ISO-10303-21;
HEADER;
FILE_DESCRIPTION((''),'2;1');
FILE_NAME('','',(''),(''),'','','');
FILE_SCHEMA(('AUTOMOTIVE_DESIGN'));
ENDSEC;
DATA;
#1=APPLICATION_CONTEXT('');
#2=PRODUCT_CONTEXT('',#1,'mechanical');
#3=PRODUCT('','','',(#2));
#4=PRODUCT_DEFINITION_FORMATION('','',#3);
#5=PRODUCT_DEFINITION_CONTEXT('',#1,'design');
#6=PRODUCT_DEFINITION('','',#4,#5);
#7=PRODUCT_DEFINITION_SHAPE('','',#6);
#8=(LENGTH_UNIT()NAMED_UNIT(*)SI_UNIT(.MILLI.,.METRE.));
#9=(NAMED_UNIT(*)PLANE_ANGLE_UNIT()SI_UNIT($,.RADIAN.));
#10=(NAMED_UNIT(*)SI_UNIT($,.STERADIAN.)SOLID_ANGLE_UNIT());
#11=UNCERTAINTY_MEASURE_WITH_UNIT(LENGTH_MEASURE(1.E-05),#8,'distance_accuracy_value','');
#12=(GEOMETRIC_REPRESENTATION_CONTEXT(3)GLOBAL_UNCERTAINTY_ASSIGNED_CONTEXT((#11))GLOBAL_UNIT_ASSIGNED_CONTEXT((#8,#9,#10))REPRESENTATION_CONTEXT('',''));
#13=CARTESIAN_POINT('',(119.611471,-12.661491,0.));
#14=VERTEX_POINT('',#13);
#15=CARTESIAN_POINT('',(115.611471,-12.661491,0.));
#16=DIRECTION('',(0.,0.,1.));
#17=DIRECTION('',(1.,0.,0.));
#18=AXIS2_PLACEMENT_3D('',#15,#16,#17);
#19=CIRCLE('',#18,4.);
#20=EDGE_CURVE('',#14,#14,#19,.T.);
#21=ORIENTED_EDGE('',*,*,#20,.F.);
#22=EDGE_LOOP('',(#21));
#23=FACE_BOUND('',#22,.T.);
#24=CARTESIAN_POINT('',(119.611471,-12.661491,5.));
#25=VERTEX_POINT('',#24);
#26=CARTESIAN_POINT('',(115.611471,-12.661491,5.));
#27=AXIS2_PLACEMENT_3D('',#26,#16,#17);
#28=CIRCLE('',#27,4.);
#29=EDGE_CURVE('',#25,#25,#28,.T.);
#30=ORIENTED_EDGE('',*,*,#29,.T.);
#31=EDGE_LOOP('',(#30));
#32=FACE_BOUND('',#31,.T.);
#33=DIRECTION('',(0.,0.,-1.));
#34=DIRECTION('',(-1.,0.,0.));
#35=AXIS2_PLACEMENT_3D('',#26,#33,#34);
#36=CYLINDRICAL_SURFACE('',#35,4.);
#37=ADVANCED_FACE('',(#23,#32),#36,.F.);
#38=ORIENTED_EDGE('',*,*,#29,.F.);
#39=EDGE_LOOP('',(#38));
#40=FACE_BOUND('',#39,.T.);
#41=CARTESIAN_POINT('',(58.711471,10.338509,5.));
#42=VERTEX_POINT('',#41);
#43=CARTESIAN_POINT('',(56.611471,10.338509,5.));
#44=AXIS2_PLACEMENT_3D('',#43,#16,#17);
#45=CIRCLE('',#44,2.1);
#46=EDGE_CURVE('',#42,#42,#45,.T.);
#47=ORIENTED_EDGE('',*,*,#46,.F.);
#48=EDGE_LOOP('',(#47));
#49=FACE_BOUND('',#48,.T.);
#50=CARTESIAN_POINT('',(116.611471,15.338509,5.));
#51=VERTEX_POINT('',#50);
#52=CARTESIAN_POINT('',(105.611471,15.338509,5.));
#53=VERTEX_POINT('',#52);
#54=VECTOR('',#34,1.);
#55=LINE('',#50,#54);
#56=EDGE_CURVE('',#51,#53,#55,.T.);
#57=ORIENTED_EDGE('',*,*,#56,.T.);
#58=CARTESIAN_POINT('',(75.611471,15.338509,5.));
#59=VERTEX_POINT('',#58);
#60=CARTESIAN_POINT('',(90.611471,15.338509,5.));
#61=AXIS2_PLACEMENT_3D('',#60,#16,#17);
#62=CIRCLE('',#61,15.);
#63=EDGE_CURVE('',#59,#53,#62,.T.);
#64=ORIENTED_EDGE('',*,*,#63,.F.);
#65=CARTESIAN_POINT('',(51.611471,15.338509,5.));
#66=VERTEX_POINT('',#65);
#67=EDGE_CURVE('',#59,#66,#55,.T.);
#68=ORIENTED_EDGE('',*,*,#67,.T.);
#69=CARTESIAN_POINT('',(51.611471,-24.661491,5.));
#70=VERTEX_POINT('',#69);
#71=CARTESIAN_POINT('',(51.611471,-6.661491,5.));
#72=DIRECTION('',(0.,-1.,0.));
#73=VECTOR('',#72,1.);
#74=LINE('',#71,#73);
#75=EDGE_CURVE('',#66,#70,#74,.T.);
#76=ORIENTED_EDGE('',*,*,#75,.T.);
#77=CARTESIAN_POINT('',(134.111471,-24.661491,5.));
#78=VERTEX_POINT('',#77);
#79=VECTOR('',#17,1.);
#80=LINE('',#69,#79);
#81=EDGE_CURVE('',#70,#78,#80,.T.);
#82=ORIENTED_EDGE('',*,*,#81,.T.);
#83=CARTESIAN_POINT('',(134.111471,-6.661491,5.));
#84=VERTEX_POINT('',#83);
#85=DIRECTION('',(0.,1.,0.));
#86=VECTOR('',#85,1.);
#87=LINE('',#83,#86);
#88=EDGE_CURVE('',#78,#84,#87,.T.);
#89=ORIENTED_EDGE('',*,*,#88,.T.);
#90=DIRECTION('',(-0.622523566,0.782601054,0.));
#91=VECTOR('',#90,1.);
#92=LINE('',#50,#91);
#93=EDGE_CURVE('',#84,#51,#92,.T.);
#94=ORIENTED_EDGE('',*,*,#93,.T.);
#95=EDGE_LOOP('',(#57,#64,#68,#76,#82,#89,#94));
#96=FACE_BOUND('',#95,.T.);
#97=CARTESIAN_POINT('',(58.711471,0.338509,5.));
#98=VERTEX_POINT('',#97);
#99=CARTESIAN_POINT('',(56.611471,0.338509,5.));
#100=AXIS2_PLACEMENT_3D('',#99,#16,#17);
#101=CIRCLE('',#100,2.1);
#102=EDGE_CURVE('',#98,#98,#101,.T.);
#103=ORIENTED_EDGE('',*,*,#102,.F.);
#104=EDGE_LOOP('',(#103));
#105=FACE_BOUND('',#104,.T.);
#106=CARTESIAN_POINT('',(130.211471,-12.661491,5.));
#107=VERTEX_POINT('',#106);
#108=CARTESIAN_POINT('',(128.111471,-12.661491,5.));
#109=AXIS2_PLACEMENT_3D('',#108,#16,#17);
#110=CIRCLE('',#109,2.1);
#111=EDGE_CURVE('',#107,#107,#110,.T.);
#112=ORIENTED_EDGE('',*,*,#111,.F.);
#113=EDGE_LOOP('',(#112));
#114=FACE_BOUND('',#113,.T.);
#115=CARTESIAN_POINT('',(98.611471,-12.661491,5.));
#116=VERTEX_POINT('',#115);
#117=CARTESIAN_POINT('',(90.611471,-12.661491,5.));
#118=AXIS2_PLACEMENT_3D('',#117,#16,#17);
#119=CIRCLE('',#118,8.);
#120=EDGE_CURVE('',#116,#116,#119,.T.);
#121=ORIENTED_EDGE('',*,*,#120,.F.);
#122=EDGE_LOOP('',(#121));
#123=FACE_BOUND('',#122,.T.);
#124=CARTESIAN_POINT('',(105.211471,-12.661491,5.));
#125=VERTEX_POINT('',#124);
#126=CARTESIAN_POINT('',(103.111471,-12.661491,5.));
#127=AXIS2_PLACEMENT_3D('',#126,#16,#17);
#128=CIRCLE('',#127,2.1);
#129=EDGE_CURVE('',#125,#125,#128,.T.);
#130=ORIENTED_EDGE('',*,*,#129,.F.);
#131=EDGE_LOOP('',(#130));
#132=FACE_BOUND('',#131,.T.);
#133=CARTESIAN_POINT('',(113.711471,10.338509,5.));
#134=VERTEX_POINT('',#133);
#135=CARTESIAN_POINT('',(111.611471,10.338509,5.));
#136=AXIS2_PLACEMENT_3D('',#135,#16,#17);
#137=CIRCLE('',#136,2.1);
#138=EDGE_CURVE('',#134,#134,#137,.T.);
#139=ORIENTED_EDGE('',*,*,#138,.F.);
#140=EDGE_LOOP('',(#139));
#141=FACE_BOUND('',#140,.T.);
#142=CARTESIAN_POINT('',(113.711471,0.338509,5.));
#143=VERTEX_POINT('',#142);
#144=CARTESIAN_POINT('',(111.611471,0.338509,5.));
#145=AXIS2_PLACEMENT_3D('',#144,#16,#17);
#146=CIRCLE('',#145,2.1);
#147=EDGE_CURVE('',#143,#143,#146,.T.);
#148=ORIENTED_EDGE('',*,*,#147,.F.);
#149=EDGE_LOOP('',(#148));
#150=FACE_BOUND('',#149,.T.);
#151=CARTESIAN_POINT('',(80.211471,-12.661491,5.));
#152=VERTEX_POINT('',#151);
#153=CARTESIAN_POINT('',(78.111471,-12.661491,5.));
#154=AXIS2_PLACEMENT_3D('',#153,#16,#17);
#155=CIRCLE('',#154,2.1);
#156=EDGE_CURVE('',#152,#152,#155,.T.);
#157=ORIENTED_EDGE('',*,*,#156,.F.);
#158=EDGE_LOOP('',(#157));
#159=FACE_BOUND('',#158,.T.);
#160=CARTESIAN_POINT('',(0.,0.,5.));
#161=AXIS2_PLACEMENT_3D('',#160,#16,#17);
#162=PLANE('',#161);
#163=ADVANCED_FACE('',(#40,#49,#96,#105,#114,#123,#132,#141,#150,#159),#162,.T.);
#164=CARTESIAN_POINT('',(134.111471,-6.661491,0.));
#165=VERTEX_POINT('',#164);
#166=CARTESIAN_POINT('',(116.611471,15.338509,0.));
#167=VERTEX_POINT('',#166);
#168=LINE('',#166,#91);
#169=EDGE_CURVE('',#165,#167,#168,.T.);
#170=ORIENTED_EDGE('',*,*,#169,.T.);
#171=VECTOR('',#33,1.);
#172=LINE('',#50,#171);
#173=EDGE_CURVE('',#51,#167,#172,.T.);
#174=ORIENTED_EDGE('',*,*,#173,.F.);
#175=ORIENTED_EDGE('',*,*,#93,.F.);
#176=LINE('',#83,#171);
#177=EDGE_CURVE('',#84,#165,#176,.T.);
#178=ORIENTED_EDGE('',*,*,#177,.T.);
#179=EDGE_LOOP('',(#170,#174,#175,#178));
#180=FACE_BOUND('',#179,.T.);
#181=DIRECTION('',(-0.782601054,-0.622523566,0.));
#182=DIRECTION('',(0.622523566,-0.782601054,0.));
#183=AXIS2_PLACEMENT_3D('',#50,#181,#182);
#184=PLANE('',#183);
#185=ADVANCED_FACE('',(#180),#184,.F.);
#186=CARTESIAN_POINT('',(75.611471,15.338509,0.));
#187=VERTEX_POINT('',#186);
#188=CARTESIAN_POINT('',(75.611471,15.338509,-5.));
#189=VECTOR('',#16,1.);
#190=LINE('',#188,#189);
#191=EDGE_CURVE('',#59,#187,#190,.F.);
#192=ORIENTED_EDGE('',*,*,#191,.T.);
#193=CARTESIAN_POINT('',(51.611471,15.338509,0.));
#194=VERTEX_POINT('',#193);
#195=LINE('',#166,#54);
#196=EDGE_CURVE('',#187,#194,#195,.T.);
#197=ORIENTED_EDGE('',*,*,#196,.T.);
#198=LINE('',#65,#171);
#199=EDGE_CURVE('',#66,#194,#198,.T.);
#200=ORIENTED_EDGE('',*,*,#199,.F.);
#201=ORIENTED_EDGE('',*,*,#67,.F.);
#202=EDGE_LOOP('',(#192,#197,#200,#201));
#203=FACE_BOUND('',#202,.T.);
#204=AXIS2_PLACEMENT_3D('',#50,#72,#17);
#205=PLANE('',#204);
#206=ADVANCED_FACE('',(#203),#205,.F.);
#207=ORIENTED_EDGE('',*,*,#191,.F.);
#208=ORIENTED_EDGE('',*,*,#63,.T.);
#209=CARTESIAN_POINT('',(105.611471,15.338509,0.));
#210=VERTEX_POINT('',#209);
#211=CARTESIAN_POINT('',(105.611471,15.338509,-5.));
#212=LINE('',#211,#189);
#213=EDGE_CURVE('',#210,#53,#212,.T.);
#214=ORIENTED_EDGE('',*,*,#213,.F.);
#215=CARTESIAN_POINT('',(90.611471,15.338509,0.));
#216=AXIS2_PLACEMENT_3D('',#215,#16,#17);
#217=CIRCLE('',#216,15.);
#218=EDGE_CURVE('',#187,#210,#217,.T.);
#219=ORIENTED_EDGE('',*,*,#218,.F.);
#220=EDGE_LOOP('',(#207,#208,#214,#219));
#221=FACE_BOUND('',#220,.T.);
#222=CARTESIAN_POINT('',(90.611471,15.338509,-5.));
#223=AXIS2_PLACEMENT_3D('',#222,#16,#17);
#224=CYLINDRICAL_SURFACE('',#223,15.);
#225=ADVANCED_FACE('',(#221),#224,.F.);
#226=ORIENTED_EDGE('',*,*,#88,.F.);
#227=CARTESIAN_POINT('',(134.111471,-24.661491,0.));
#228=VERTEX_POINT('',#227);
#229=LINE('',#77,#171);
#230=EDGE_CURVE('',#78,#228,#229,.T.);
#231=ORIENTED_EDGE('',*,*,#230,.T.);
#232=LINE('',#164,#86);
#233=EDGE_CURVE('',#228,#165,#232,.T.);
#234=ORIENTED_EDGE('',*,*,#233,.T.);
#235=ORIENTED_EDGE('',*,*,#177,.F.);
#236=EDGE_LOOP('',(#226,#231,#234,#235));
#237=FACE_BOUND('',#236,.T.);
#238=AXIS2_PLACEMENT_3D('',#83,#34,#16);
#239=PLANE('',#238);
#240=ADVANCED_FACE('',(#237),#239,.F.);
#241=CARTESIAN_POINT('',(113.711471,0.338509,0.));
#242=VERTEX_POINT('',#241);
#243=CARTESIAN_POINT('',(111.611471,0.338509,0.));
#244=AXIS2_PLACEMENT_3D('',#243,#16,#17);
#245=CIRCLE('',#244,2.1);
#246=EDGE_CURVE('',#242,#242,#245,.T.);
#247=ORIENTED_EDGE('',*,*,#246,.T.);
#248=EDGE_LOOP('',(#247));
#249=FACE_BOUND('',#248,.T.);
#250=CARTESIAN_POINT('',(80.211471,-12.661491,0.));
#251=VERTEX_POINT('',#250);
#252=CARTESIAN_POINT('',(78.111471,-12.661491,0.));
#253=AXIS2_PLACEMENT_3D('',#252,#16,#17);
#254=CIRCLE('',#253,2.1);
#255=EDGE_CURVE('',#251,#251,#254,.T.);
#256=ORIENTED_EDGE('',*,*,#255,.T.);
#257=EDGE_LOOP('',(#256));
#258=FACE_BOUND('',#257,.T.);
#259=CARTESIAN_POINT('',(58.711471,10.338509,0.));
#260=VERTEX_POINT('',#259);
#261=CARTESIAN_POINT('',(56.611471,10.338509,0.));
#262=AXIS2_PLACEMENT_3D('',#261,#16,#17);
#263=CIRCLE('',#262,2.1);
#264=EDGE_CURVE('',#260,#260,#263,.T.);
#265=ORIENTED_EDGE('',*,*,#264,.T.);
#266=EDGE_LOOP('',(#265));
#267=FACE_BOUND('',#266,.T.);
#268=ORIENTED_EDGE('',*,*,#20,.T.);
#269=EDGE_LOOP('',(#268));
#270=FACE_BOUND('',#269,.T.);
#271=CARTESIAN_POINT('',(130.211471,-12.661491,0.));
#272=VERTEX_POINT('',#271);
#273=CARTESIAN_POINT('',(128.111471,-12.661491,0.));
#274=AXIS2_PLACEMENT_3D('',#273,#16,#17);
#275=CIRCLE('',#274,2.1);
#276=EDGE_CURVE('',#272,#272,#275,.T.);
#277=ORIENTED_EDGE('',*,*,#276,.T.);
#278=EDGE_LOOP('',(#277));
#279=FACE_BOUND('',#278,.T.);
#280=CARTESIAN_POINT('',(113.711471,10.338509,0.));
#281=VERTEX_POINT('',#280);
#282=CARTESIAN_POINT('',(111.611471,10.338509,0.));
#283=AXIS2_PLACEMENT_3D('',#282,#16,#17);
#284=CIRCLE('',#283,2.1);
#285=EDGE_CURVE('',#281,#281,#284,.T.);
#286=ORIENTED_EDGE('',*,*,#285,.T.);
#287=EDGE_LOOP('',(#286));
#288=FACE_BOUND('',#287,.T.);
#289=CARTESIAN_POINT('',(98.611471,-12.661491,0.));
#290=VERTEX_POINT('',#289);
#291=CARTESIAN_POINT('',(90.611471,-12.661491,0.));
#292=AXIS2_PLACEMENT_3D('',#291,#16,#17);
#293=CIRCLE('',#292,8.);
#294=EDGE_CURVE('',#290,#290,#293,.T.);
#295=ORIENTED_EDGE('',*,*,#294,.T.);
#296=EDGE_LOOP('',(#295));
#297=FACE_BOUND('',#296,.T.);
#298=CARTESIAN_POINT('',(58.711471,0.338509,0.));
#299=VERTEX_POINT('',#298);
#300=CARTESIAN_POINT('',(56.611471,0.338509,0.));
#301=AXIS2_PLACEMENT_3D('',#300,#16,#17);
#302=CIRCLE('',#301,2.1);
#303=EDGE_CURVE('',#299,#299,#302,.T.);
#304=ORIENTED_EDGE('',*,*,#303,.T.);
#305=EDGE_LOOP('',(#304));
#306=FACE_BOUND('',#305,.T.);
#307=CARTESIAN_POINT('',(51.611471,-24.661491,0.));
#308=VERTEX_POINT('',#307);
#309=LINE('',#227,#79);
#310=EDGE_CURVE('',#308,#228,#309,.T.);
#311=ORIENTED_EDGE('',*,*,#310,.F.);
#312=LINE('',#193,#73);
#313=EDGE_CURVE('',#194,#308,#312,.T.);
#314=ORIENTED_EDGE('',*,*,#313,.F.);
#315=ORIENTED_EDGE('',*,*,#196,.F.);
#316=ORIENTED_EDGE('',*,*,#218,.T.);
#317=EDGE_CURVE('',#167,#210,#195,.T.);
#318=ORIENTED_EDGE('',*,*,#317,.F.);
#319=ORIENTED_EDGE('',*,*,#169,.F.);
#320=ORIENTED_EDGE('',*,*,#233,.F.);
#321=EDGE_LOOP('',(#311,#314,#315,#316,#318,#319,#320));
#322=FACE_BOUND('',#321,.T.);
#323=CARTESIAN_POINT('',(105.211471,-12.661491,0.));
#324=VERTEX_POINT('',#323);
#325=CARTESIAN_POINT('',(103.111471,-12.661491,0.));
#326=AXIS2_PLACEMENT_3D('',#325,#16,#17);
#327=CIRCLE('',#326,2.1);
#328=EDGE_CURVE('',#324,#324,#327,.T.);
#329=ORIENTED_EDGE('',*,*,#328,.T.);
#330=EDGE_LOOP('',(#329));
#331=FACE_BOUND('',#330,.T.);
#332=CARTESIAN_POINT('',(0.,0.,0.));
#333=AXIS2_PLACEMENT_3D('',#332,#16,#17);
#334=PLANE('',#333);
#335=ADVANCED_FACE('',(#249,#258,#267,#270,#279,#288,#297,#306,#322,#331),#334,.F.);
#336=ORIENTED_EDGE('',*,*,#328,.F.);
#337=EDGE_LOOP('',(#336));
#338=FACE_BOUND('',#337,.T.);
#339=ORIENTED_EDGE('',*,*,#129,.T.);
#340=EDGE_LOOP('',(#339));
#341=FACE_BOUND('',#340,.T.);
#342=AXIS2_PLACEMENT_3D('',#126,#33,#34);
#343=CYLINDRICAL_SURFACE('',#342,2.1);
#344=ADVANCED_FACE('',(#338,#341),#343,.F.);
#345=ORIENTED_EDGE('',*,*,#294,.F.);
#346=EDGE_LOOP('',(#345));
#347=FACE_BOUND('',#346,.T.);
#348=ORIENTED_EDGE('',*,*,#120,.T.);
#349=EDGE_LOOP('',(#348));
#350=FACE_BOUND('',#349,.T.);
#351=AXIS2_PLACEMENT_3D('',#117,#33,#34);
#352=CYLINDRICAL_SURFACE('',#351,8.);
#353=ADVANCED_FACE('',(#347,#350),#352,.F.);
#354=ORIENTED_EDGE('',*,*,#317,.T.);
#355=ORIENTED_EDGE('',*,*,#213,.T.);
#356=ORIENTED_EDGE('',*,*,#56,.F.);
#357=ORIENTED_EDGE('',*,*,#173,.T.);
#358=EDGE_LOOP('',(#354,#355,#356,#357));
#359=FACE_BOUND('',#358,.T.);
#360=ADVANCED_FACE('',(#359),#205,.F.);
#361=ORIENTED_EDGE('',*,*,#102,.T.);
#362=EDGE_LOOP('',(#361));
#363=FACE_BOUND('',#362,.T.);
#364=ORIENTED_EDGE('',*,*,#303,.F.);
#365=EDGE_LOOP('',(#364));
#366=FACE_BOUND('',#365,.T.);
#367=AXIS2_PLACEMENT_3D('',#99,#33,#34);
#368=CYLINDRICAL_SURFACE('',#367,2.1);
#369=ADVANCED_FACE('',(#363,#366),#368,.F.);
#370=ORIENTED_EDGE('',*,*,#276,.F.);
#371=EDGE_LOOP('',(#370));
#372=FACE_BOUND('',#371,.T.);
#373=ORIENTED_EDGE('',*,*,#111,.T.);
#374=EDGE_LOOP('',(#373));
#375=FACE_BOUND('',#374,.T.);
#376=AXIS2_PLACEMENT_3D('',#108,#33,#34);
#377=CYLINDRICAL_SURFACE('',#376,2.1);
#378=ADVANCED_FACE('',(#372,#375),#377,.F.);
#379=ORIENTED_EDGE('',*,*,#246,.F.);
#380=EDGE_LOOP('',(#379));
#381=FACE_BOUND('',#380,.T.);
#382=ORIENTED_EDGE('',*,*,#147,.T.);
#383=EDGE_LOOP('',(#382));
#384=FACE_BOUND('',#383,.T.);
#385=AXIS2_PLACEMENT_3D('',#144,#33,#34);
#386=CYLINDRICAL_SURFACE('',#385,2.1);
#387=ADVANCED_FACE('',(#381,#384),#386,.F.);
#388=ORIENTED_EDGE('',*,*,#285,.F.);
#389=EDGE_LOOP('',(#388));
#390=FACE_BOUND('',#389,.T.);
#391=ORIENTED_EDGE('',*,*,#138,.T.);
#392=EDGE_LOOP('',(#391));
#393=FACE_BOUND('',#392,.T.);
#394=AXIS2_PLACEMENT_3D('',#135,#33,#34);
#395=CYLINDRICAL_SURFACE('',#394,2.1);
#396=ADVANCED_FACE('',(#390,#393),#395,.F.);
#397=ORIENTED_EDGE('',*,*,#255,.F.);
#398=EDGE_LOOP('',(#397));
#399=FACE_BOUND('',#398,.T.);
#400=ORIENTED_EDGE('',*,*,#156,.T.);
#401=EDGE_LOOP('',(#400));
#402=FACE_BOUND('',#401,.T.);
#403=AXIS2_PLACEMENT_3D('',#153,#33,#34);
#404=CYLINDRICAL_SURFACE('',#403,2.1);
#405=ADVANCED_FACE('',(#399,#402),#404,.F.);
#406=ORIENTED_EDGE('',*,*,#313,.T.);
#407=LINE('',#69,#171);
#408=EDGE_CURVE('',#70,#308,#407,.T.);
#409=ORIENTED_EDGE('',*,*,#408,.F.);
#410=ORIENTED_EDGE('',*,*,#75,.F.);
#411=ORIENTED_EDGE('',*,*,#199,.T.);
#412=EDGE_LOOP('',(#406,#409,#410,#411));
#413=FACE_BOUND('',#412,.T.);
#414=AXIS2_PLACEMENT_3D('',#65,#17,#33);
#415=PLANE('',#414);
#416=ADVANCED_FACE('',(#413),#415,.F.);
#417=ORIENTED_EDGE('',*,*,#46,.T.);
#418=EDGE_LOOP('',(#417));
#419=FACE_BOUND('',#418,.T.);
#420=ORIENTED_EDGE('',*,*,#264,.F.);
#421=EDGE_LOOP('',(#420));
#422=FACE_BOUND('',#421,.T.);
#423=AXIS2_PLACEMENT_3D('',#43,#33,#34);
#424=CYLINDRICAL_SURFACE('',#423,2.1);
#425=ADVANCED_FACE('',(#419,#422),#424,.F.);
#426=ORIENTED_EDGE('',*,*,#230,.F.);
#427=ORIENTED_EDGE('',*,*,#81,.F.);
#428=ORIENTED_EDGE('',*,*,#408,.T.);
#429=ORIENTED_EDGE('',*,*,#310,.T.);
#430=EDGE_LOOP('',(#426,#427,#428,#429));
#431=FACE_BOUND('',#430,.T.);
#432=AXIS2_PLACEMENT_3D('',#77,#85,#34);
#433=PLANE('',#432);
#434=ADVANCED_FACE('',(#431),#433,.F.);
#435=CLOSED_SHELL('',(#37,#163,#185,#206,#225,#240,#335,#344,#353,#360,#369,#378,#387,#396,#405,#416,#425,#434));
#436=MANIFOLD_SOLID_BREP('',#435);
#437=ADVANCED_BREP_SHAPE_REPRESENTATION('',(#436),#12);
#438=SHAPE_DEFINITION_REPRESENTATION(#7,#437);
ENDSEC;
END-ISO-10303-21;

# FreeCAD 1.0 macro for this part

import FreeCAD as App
import Part
import Sketcher
from FreeCAD import Vector
Q = App.Units.Quantity

doc = App.newDocument("Part")
params = doc.addObject("Spreadsheet::Sheet", "Params")
for row, (alias, value) in enumerate([
    ("sketch1_diameter", "16 mm"),
    ("sketch1_diameter2", "8 mm"),
    ("sketch1_diameter3", "4.2 mm"),
    ("sketch1_width", "65 mm"),
    ("sketch1_height", "40 mm"),
    ("pad1_length", "5 mm"),
    ("sketch2_diameter", "30 mm"),
    ("pocket1_length", "10 mm"),
], start=1):
    params.set(f"A{row}", alias)
    params.set(f"B{row}", "=" + value)
    params.setAlias(f"B{row}", alias)

body = doc.addObject("PartDesign::Body", "Body")

sketch1 = body.newObject("Sketcher::SketchObject", "Sketch")
sketch1.AttachmentSupport = (doc.getObject("XY_Plane"), [""])
sketch1.MapMode = "FlatFace"
sketch1.addGeometry([
    Part.LineSegment(Vector(116.6, 15.3, 0), Vector(51.6, 15.3, 0)),
    Part.LineSegment(Vector(51.6, 15.3, 0), Vector(51.6, -24.7, 0)),
    Part.LineSegment(Vector(51.6, -24.7, 0), Vector(134.1, -24.7, 0)),
    Part.LineSegment(Vector(134.1, -24.7, 0), Vector(134.1, -6.7, 0)),
    Part.LineSegment(Vector(134.1, -6.7, 0), Vector(116.6, 15.3, 0)),
    Part.Circle(Vector(78.1, -12.7, 0), Vector(0, 0, 1), 2.1),
    Part.Circle(Vector(90.6, -12.7, 0), Vector(0, 0, 1), 8),
    Part.Circle(Vector(103.1, -12.7, 0), Vector(0, 0, 1), 2.1),
    Part.Circle(Vector(115.6, -12.7, 0), Vector(0, 0, 1), 4),
    Part.Circle(Vector(128.1, -12.7, 0), Vector(0, 0, 1), 2.1),
    Part.Circle(Vector(56.6, 0.3, 0), Vector(0, 0, 1), 2.1),
    Part.Circle(Vector(56.6, 10.3, 0), Vector(0, 0, 1), 2.1),
    Part.Circle(Vector(111.6, 0.3, 0), Vector(0, 0, 1), 2.1),
    Part.Circle(Vector(111.6, 10.3, 0), Vector(0, 0, 1), 2.1),
], False)
sketch1.addConstraint([
    Sketcher.Constraint("Coincident", 0, 2, 1, 1),
    Sketcher.Constraint("Coincident", 1, 2, 2, 1),
    Sketcher.Constraint("Coincident", 2, 2, 3, 1),
    Sketcher.Constraint("Coincident", 3, 2, 4, 1),
    Sketcher.Constraint("Coincident", 4, 2, 0, 1),
    Sketcher.Constraint("Horizontal", 0),
    Sketcher.Constraint("Vertical", 1),
    Sketcher.Constraint("Horizontal", 2),
    Sketcher.Constraint("Vertical", 3),
    Sketcher.Constraint("Equal", 5, 7),
    Sketcher.Constraint("Equal", 7, 9),
    Sketcher.Constraint("Equal", 9, 10),
    Sketcher.Constraint("Equal", 10, 11),
    Sketcher.Constraint("Equal", 11, 12),
    Sketcher.Constraint("Equal", 12, 13),
    Sketcher.Constraint("Horizontal", 5, 3, 6, 3),
    Sketcher.Constraint("Horizontal", 6, 3, 7, 3),
    Sketcher.Constraint("Horizontal", 7, 3, 8, 3),
    Sketcher.Constraint("Horizontal", 8, 3, 9, 3),
    Sketcher.Constraint("Horizontal", 10, 3, 12, 3),
    Sketcher.Constraint("Horizontal", 11, 3, 13, 3),
    Sketcher.Constraint("Vertical", 10, 3, 11, 3),
    Sketcher.Constraint("Vertical", 12, 3, 13, 3),
    Sketcher.Constraint("Diameter", 6, Q("16 mm")),
    Sketcher.Constraint("Diameter", 8, Q("8 mm")),
    Sketcher.Constraint("Diameter", 5, Q("4.2 mm")),
    Sketcher.Constraint("DistanceX", 0, 2, 0, 1, Q("65 mm")),
    Sketcher.Constraint("DistanceY", 1, 2, 1, 1, Q("40 mm")),
    Sketcher.Constraint("DistanceY", 3, 1, 3, 2, Q("18 mm")),
    Sketcher.Constraint("DistanceX", 2, 1, 2, 2, Q("82.5 mm")),
    Sketcher.Constraint("DistanceX", 5, 3, 7, 3, Q("25 mm")),
    Sketcher.Constraint("DistanceX", 6, 3, 8, 3, Q("25 mm")),
    Sketcher.Constraint("DistanceX", 7, 3, 9, 3, Q("25 mm")),
    Sketcher.Constraint("DistanceY", 5, 3, 10, 3, Q("13 mm")),
    Sketcher.Constraint("DistanceX", 10, 3, 6, 3, Q("34 mm")),
    Sketcher.Constraint("DistanceY", 10, 3, 11, 3, Q("10 mm")),
    Sketcher.Constraint("DistanceX", 12, 3, 8, 3, Q("4 mm")),
    Sketcher.Constraint("DistanceX", 0, 2, 11, 3, Q("5 mm")),
    Sketcher.Constraint("DistanceY", 11, 3, 0, 2, Q("5 mm")),
    Sketcher.Constraint("DistanceX", 9, 3, 2, 2, Q("6 mm")),
    Sketcher.Constraint("DistanceX", -1, 1, 5, 3, Q("78.111471 mm")),
    Sketcher.Constraint("DistanceY", 5, 3, -1, 1, Q("12.661491 mm")),
])
sketch1.setExpression("Constraints[23]", "Params.sketch1_diameter")
sketch1.setExpression("Constraints[24]", "Params.sketch1_diameter2")
sketch1.setExpression("Constraints[25]", "Params.sketch1_diameter3")
sketch1.setExpression("Constraints[26]", "Params.sketch1_width")
sketch1.setExpression("Constraints[27]", "Params.sketch1_height")
pad1 = body.newObject("PartDesign::Pad", "Pad")
pad1.Profile = sketch1
pad1.setExpression("Length", "Params.pad1_length")

sketch2 = body.newObject("Sketcher::SketchObject", "Sketch001")
sketch2.AttachmentSupport = (doc.getObject("XY_Plane"), [""])
sketch2.MapMode = "FlatFace"
sketch2.AttachmentOffset = App.Placement(Vector(0, 0, 5), App.Rotation())
sketch2.addGeometry(Part.Circle(Vector(91, 15, 0), Vector(0, 0, 1), 15), False)
sketch2.addConstraint([
    Sketcher.Constraint("Diameter", 0, Q("30 mm")),
    Sketcher.Constraint("DistanceX", -1, 1, 0, 3, Q("90.611471 mm")),
    Sketcher.Constraint("DistanceY", -1, 1, 0, 3, Q("15.338509 mm")),
])
sketch2.setExpression("Constraints[0]", "Params.sketch2_diameter")
pocket1 = body.newObject("PartDesign::Pocket", "Pocket")
pocket1.Profile = sketch2
pocket1.setExpression("Length", "Params.pocket1_length")

doc.recompute()
